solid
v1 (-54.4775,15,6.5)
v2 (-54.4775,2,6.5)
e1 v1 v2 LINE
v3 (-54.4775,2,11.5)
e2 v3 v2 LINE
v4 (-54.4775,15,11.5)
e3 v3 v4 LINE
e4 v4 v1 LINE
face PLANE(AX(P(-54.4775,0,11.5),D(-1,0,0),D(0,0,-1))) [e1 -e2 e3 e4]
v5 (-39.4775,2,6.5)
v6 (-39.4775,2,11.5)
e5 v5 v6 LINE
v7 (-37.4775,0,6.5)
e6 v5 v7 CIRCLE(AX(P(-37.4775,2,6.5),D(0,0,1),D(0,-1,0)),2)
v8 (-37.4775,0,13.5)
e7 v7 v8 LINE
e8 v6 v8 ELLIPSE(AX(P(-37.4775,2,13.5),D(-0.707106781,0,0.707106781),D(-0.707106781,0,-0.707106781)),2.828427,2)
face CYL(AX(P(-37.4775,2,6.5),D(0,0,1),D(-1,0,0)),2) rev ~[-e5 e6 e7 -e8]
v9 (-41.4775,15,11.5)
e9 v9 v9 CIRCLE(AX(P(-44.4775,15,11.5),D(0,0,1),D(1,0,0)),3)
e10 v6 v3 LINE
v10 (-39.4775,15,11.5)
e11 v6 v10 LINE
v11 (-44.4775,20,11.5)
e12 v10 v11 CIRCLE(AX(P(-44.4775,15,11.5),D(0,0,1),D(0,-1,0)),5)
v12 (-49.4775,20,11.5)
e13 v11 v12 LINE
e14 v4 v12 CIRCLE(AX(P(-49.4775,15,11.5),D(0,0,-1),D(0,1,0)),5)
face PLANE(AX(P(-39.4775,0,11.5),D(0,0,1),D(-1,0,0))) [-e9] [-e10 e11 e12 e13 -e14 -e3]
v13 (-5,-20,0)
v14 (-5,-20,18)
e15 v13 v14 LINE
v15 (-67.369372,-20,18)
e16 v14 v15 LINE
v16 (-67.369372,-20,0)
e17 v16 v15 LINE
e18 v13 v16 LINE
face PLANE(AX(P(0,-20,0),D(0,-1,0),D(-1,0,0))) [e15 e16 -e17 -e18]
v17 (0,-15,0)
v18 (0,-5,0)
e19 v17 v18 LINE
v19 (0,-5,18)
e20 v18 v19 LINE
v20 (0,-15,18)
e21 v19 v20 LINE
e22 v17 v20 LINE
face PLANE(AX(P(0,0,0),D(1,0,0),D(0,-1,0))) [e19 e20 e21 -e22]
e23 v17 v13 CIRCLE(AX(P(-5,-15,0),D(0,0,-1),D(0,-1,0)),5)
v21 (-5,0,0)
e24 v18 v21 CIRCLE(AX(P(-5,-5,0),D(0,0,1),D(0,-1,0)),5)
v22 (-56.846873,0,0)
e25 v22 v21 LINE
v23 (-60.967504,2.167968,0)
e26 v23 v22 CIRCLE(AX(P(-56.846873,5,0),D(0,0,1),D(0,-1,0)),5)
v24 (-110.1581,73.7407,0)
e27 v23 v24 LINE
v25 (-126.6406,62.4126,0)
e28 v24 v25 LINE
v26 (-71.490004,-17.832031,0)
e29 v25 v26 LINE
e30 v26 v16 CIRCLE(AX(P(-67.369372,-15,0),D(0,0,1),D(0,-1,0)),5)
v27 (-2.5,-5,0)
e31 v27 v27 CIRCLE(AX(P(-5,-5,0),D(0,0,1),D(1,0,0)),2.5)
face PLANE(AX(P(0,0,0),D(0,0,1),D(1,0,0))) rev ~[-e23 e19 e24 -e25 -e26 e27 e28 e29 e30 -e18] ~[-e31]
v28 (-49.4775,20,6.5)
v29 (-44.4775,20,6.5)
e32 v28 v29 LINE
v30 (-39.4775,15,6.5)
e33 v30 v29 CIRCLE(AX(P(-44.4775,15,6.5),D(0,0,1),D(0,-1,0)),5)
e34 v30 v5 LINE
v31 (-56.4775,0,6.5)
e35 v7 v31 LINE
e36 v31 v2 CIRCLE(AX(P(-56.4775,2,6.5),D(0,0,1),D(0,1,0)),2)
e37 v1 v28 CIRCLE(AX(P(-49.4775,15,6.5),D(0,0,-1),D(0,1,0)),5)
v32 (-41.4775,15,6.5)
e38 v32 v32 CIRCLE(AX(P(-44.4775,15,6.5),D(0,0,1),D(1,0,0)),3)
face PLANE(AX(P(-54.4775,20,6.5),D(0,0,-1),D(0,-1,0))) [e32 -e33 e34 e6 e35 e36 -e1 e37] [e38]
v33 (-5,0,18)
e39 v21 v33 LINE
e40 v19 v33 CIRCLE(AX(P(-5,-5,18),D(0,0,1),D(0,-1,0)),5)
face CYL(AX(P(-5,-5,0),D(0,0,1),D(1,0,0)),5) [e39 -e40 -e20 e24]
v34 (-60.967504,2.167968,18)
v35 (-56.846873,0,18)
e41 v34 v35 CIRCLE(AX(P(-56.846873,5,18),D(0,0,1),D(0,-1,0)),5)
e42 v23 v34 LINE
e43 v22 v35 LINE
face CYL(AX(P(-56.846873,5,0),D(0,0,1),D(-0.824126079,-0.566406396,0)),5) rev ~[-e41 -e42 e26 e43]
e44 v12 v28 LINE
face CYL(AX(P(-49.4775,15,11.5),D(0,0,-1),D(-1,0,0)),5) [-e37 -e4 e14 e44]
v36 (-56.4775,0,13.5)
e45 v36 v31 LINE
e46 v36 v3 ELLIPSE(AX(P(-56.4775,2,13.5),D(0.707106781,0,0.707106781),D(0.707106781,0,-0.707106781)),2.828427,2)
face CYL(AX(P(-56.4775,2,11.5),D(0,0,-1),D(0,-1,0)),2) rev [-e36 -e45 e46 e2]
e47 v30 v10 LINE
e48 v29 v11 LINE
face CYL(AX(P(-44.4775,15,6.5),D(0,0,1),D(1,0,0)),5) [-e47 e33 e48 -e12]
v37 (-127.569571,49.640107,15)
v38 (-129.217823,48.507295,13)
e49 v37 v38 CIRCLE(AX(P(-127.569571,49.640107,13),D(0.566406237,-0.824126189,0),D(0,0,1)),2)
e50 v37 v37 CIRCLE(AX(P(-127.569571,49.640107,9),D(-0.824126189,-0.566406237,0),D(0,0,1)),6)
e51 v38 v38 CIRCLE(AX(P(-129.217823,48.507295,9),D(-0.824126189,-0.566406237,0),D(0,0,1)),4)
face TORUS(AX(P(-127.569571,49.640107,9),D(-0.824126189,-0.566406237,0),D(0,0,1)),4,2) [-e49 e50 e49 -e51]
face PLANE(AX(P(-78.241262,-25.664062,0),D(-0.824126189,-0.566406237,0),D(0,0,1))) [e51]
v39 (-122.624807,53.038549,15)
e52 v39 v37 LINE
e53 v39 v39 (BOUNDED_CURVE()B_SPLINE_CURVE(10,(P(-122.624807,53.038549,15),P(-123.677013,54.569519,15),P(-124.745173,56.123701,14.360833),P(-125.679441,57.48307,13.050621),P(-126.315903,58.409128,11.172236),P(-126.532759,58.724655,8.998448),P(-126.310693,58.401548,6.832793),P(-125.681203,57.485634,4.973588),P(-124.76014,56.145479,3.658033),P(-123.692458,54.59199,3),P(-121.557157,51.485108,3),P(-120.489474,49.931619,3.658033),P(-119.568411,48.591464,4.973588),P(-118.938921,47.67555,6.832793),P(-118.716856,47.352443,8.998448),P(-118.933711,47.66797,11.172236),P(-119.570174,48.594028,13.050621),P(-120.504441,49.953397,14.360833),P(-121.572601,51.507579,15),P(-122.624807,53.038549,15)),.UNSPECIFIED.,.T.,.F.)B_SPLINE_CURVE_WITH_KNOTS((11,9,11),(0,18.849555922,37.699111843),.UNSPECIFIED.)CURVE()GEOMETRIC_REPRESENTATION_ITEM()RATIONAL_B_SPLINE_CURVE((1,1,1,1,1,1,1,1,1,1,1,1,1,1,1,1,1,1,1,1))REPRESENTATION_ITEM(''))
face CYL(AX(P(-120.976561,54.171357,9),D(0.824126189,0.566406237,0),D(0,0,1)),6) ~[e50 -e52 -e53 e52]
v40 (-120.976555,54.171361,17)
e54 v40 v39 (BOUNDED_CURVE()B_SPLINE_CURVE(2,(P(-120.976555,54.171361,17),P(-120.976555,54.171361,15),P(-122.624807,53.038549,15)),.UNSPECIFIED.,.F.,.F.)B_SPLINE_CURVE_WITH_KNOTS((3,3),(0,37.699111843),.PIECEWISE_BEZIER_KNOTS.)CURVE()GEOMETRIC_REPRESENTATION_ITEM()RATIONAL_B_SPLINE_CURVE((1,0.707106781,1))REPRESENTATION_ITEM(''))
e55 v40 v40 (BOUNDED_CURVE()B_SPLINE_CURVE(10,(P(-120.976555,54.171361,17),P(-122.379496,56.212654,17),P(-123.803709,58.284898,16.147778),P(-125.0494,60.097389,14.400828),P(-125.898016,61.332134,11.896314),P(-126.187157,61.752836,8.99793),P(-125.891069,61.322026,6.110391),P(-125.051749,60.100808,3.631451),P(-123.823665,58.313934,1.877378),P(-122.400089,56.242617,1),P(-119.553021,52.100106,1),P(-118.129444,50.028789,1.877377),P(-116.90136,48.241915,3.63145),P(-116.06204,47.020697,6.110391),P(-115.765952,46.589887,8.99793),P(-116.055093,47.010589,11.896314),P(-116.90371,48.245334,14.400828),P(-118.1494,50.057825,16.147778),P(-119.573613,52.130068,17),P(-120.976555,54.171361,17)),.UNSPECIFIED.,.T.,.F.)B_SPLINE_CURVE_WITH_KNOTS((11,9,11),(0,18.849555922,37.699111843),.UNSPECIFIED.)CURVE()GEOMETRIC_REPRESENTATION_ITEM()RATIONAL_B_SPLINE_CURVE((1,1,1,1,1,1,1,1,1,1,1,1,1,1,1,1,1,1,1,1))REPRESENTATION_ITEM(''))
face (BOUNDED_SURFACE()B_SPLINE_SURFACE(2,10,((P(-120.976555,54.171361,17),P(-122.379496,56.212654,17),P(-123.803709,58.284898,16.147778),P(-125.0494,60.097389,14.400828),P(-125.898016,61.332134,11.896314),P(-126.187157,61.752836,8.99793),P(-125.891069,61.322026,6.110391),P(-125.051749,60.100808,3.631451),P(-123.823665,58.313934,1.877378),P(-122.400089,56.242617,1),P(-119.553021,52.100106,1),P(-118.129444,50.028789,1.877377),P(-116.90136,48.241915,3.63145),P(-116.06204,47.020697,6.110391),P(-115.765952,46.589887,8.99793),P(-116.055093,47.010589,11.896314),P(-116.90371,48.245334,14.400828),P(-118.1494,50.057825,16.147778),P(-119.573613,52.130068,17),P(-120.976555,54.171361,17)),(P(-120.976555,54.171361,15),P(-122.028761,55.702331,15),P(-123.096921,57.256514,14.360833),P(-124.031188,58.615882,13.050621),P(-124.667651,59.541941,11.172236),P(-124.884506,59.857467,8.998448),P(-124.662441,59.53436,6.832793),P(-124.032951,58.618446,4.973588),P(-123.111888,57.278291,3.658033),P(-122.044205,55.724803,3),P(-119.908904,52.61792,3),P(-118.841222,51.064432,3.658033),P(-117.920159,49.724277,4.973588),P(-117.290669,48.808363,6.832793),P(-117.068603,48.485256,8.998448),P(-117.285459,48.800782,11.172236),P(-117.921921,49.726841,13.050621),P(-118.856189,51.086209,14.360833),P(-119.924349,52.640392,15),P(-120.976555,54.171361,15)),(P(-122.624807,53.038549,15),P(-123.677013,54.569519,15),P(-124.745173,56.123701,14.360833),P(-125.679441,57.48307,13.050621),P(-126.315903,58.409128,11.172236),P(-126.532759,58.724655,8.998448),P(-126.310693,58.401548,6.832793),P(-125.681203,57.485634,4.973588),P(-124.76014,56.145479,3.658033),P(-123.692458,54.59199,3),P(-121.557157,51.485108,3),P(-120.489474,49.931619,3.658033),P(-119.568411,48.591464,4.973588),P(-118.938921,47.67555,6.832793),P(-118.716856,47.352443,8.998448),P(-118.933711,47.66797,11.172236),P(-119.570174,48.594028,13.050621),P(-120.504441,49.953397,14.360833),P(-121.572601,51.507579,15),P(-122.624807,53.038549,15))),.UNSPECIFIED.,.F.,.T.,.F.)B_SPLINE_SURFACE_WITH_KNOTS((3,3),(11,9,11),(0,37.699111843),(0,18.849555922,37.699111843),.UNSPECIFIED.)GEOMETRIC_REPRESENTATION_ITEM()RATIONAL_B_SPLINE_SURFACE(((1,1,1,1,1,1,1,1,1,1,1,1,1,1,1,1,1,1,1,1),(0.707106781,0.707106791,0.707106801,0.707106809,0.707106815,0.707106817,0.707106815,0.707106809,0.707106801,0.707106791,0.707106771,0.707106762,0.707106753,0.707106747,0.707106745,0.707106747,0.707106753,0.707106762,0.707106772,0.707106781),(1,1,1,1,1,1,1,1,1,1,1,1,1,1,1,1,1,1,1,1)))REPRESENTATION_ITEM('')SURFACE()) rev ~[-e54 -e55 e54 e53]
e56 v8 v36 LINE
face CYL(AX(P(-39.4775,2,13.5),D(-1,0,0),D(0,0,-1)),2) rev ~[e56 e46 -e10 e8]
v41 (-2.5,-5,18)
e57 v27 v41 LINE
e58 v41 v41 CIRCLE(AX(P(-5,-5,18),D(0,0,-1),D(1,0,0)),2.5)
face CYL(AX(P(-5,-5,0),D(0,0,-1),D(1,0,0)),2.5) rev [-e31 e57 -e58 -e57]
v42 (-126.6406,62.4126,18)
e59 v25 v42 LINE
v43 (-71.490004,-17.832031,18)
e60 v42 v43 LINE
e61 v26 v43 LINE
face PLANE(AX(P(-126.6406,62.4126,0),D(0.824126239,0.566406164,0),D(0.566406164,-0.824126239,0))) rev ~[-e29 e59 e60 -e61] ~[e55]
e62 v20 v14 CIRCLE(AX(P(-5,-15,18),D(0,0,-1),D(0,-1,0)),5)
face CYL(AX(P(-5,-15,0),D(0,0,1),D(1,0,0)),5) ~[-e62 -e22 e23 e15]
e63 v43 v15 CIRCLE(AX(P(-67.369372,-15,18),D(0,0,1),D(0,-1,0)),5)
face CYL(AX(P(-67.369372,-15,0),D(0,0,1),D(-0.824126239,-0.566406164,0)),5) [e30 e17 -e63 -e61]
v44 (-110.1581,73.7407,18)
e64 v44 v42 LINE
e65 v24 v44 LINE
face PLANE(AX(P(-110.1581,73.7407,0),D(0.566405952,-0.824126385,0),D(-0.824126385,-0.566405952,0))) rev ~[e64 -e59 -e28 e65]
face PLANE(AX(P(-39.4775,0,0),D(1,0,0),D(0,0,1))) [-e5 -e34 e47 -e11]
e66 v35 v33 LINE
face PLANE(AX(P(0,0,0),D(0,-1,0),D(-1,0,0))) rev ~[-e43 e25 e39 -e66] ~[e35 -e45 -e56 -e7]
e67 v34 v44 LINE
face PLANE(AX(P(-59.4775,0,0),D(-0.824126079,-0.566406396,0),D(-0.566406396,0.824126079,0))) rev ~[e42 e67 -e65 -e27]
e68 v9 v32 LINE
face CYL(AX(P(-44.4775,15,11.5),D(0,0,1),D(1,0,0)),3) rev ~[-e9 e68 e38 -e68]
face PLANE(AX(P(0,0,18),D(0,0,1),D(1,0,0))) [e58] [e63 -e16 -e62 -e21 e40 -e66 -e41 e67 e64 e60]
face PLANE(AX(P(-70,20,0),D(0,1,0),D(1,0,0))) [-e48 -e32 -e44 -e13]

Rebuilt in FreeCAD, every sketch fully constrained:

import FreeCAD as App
import Part
import Sketcher

V = App.Vector
Q = App.Units.Quantity


def edges_at(feature, points):
    """Names of the edges that pass closest to the given points."""
    edges = feature.Shape.Edges
    near = lambda p: min(range(len(edges)), key=lambda i: edges[i].distToShape(Part.Vertex(*p))[0])
    return sorted({f"Edge{near(p) + 1}" for p in points})

doc = App.newDocument("Part")
body = doc.addObject("PartDesign::Body", "Body")

sketch1 = doc.addObject("Sketcher::SketchObject", "Sketch")
body.addObject(sketch1)
sketch1.AttachmentSupport = (doc.XY_Plane, [""])
sketch1.MapMode = "FlatFace"
sketch1.addGeometry(Part.LineSegment(V(0, 0, 0), V(-59.5, 0, 0)), False)
sketch1.addGeometry(Part.LineSegment(V(-59.5, 0, 0), V(-110.2, 73.7, 0)), False)
sketch1.addGeometry(Part.LineSegment(V(-110.2, 73.7, 0), V(-126.6, 62.4, 0)), False)
sketch1.addGeometry(Part.LineSegment(V(-126.6, 62.4, 0), V(-70, -20, 0)), False)
sketch1.addGeometry(Part.LineSegment(V(-70, -20, 0), V(0, -20, 0)), False)
sketch1.addGeometry(Part.LineSegment(V(0, -20, 0), V(0, 0, 0)), False)
sketch1.addGeometry(Part.Circle(V(-5, -5, 0), V(0, 0, 1), 2.5), False)
sketch1.addConstraint(Sketcher.Constraint("Coincident", 0, 2, 1, 1))
sketch1.addConstraint(Sketcher.Constraint("Coincident", 1, 2, 2, 1))
sketch1.addConstraint(Sketcher.Constraint("Coincident", 2, 2, 3, 1))
sketch1.addConstraint(Sketcher.Constraint("Coincident", 3, 2, 4, 1))
sketch1.addConstraint(Sketcher.Constraint("Coincident", 4, 2, 5, 1))
sketch1.addConstraint(Sketcher.Constraint("Coincident", 5, 2, 0, 1))
sketch1.addConstraint(Sketcher.Constraint("Horizontal", 0))
sketch1.addConstraint(Sketcher.Constraint("Horizontal", 4))
sketch1.addConstraint(Sketcher.Constraint("Vertical", 5))
sketch1.addConstraint(Sketcher.Constraint("Coincident", 5, 2, -1, 1))
sketch1.addConstraint(Sketcher.Constraint("Perpendicular", 1, 2))
sketch1.addConstraint(Sketcher.Constraint("Perpendicular", 2, 3))
sketch1.addConstraint(Sketcher.Constraint("Diameter", 6, 5.0))
sketch1.addConstraint(Sketcher.Constraint("DistanceX", 4, 1, 4, 2, 70.0))
sketch1.addConstraint(Sketcher.Constraint("DistanceY", 5, 1, 5, 2, 20.0))
sketch1.addConstraint(Sketcher.Constraint("Distance", 2, 20.0))
sketch1.addConstraint(Sketcher.Constraint("Distance", 3, 100.0))
sketch1.addConstraint(Sketcher.Constraint("DistanceX", 6, 3, -1, 1, 5.0))
sketch1.addConstraint(Sketcher.Constraint("DistanceY", 6, 3, -1, 1, 5.0))
sketch1.addConstraint(Sketcher.Constraint("Angle", 1, Q("124.5 deg")))
pad1 = doc.addObject("PartDesign::Pad", "Pad")
body.addObject(pad1)
pad1.Profile = sketch1
pad1.Length = 18
doc.recompute()

fillet = doc.addObject("PartDesign::Fillet", "Fillet")
body.addObject(fillet)
fillet.Base = (pad1, edges_at(pad1, [(0, 0, 9), (0, -20, 9)]))
fillet.Radius = 5

sketch2 = doc.addObject("Sketcher::SketchObject", "Sketch001")
body.addObject(sketch2)
sketch2.AttachmentSupport = (doc.XZ_Plane, [""])
sketch2.MapMode = "FlatFace"
sketch2.addGeometry(Part.LineSegment(V(-39, 0, 0), V(-54, 0, 0)), False)
sketch2.addGeometry(Part.LineSegment(V(-54, 0, 0), V(-54, 12, 0)), False)
sketch2.addGeometry(Part.LineSegment(V(-54, 12, 0), V(-39, 12, 0)), False)
sketch2.addGeometry(Part.LineSegment(V(-39, 12, 0), V(-39, 0, 0)), False)
sketch2.addConstraint(Sketcher.Constraint("Coincident", 0, 2, 1, 1))
sketch2.addConstraint(Sketcher.Constraint("Coincident", 1, 2, 2, 1))
sketch2.addConstraint(Sketcher.Constraint("Coincident", 2, 2, 3, 1))
sketch2.addConstraint(Sketcher.Constraint("Coincident", 3, 2, 0, 1))
sketch2.addConstraint(Sketcher.Constraint("Horizontal", 0))
sketch2.addConstraint(Sketcher.Constraint("Vertical", 1))
sketch2.addConstraint(Sketcher.Constraint("Horizontal", 2))
sketch2.addConstraint(Sketcher.Constraint("Vertical", 3))
sketch2.addConstraint(Sketcher.Constraint("PointOnObject", 0, 2, -1))
sketch2.addConstraint(Sketcher.Constraint("DistanceX", 0, 2, 0, 1, 15.0))
sketch2.addConstraint(Sketcher.Constraint("DistanceY", 1, 1, 1, 2, 11.5))
sketch2.addConstraint(Sketcher.Constraint("DistanceX", 0, 2, -1, 1, 54.4775))
pad2 = doc.addObject("PartDesign::Pad", "Pad001")
body.addObject(pad2)
pad2.Profile = sketch2
pad2.Length = 20
pad2.Reversed = True

sketch3 = doc.addObject("Sketcher::SketchObject", "Sketch002")
body.addObject(sketch3)
sketch3.AttachmentSupport = (doc.XY_Plane, [""])
sketch3.MapMode = "FlatFace"
sketch3.AttachmentOffset = App.Placement(V(0, 0, 11.5), App.Rotation())
sketch3.addGeometry(Part.Circle(V(-44.5, 15, 0), V(0, 0, 1), 3), False)
sketch3.addConstraint(Sketcher.Constraint("Diameter", 0, 6.0))
sketch3.addConstraint(Sketcher.Constraint("DistanceY", -1, 1, 0, 3, 15.0))
sketch3.addConstraint(Sketcher.Constraint("DistanceX", 0, 3, -1, 1, 44.4775))
pocket1 = doc.addObject("PartDesign::Pocket", "Pocket")
body.addObject(pocket1)
pocket1.Profile = sketch3
pocket1.Type = "UpToFirst"

sketch4 = doc.addObject("Sketcher::SketchObject", "Sketch003")
body.addObject(sketch4)
sketch4.AttachmentSupport = (doc.YZ_Plane, [""])
sketch4.MapMode = "FlatFace"
sketch4.AttachmentOffset = App.Placement(V(0, 0, -54.4775), App.Rotation())
sketch4.addGeometry(Part.LineSegment(V(20, 6, 0), V(20, 0, 0)), False)
sketch4.addGeometry(Part.LineSegment(V(20, 0, 0), V(0, 0, 0)), False)
sketch4.addGeometry(Part.LineSegment(V(0, 0, 0), V(0, 6, 0)), False)
sketch4.addGeometry(Part.LineSegment(V(0, 6, 0), V(20, 6, 0)), False)
sketch4.addConstraint(Sketcher.Constraint("Coincident", 0, 2, 1, 1))
sketch4.addConstraint(Sketcher.Constraint("Coincident", 1, 2, 2, 1))
sketch4.addConstraint(Sketcher.Constraint("Coincident", 2, 2, 3, 1))
sketch4.addConstraint(Sketcher.Constraint("Coincident", 3, 2, 0, 1))
sketch4.addConstraint(Sketcher.Constraint("Vertical", 0))
sketch4.addConstraint(Sketcher.Constraint("Horizontal", 1))
sketch4.addConstraint(Sketcher.Constraint("Vertical", 2))
sketch4.addConstraint(Sketcher.Constraint("Horizontal", 3))
sketch4.addConstraint(Sketcher.Constraint("Coincident", 1, 2, -1, 1))
sketch4.addConstraint(Sketcher.Constraint("DistanceX", 1, 2, 1, 1, 20.0))
sketch4.addConstraint(Sketcher.Constraint("DistanceY", 0, 2, 0, 1, 6.5))
pocket2 = doc.addObject("PartDesign::Pocket", "Pocket001")
body.addObject(pocket2)
pocket2.Profile = sketch4
pocket2.Type = "UpToFirst"
pocket2.Reversed = True
doc.recompute()

fillet2 = doc.addObject("PartDesign::Fillet", "Fillet001")
body.addObject(fillet2)
fillet2.Base = (pocket2, edges_at(pocket2, [(-39.477, 20, 9), (-54.477, 20, 9)]))
fillet2.Radius = 5
doc.recompute()

fillet3 = doc.addObject("PartDesign::Fillet", "Fillet002")
body.addObject(fillet3)
fillet3.Base = (fillet2, edges_at(fillet2, [(-54.477, 0, 9), (-46.977, 0, 11.5), (-39.477, 0, 9)]))
fillet3.Radius = 2

sketch5 = doc.addObject("Sketcher::SketchObject", "Sketch004")
body.addObject(sketch5)
sketch5.Placement = App.Placement(V(-70, -20, 0), App.Rotation(V(0, 0, 1), V(-0.566406237, 0.824126189, 0), V(-0.824126189, -0.566406237, 0), "ZXY"))
sketch5.addGeometry(Part.Circle(V(9, 90, 0), V(0, 0, 1), 6), False)
sketch5.addConstraint(Sketcher.Constraint("Diameter", 0, 12.0))
sketch5.addConstraint(Sketcher.Constraint("DistanceX", -1, 1, 0, 3, 9.0))
sketch5.addConstraint(Sketcher.Constraint("DistanceY", -1, 1, 0, 3, 90.0))
pad3 = doc.addObject("PartDesign::Pad", "Pad002")
body.addObject(pad3)
pad3.Profile = sketch5
pad3.Length = 10
doc.recompute()

fillet4 = doc.addObject("PartDesign::Fillet", "Fillet003")
body.addObject(fillet4)
fillet4.Base = (pad3, edges_at(pad3, [(-129.218, 48.507, 3), (-120.977, 54.171, 3)]))
fillet4.Radius = 2
doc.recompute()

fillet5 = doc.addObject("PartDesign::Fillet", "Fillet004")
body.addObject(fillet5)
fillet5.Base = (fillet4, edges_at(fillet4, [(-70, -20, 9), (-59.477, 0, 9)]))
fillet5.Radius = 5

doc.recompute()
